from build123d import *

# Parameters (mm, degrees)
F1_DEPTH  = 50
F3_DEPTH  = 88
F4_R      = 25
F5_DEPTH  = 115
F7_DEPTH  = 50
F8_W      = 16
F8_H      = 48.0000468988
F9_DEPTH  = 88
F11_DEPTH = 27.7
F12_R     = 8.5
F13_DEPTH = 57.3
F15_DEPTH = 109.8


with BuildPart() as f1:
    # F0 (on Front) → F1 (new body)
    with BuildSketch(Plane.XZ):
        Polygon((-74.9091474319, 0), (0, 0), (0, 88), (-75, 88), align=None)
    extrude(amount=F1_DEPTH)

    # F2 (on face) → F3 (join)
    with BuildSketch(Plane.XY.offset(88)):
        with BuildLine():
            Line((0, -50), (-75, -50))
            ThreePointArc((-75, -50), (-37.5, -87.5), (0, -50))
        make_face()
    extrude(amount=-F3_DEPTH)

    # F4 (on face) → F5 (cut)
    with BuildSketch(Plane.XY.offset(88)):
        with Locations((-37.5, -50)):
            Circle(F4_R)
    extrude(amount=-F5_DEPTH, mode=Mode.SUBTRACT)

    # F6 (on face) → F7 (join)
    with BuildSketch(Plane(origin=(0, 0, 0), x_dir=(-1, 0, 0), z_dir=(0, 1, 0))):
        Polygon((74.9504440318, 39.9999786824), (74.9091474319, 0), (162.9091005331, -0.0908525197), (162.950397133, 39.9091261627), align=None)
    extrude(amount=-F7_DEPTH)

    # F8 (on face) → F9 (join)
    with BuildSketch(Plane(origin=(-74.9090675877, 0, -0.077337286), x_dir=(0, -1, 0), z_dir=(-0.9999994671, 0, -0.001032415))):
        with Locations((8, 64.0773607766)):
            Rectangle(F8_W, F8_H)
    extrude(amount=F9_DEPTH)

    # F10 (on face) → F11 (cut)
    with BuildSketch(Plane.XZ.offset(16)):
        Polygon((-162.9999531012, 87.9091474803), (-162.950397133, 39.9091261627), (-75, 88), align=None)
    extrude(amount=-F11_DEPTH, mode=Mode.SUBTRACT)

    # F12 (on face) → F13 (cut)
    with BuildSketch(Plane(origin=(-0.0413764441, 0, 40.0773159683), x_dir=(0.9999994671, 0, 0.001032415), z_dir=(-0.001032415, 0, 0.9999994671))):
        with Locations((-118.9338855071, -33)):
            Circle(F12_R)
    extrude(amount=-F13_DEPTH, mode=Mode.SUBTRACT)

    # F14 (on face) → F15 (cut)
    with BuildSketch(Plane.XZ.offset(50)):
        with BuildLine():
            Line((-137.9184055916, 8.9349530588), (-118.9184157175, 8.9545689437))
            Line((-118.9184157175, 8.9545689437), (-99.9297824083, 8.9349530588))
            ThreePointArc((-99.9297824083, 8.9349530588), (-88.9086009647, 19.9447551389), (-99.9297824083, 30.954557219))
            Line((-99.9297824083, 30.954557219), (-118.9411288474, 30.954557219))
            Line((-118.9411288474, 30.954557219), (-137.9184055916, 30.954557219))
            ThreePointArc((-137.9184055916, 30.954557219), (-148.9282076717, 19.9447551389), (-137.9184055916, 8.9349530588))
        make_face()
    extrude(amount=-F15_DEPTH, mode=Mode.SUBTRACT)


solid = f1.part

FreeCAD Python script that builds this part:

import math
import FreeCAD as App
import Part
import Sketcher

V = App.Vector
Q = App.Units.Quantity

doc = App.newDocument("Part")
body = doc.addObject("PartDesign::Body", "Body")

sketch1 = doc.addObject("Sketcher::SketchObject", "Sketch")
body.addObject(sketch1)
sketch1.AttachmentSupport = (doc.XZ_Plane, [""])
sketch1.MapMode = "FlatFace"
sketch1.addGeometry(Part.LineSegment(V(-75, 0, 0), V(0, 0, 0)), False)
sketch1.addGeometry(Part.LineSegment(V(0, 0, 0), V(0, 88, 0)), False)
sketch1.addGeometry(Part.LineSegment(V(0, 88, 0), V(-75, 88, 0)), False)
sketch1.addGeometry(Part.LineSegment(V(-75, 88, 0), V(-75, 0, 0)), False)
sketch1.addConstraint(Sketcher.Constraint("Coincident", 0, 2, 1, 1))
sketch1.addConstraint(Sketcher.Constraint("Coincident", 1, 2, 2, 1))
sketch1.addConstraint(Sketcher.Constraint("Coincident", 2, 2, 3, 1))
sketch1.addConstraint(Sketcher.Constraint("Coincident", 3, 2, 0, 1))
sketch1.addConstraint(Sketcher.Constraint("Horizontal", 0))
sketch1.addConstraint(Sketcher.Constraint("Vertical", 1))
sketch1.addConstraint(Sketcher.Constraint("Horizontal", 2))
sketch1.addConstraint(Sketcher.Constraint("Coincident", 0, 2, -1, 1))
sketch1.addConstraint(Sketcher.Constraint("DistanceX", 2, 2, 2, 1, Q("75 mm")))
sketch1.addConstraint(Sketcher.Constraint("DistanceY", 1, 1, 1, 2, Q("88 mm")))
sketch1.addConstraint(Sketcher.Constraint("DistanceX", 0, 1, 0, 2, Q("74.909147 mm")))
pad1 = doc.addObject("PartDesign::Pad", "Pad")
body.addObject(pad1)
pad1.Profile = sketch1
pad1.Length = 50

sketch2 = doc.addObject("Sketcher::SketchObject", "Sketch001")
body.addObject(sketch2)
sketch2.AttachmentSupport = (doc.XY_Plane, [""])
sketch2.MapMode = "FlatFace"
sketch2.AttachmentOffset = App.Placement(V(0, 0, 88), App.Rotation())
sketch2.addGeometry(Part.LineSegment(V(0, -50, 0), V(-75, -50, 0)), False)
sketch2.addGeometry(Part.ArcOfCircle(Part.Circle(V(-38, -50, 0), V(0, 0, 1), 38), math.radians(180), math.radians(360)), False)
sketch2.addConstraint(Sketcher.Constraint("Coincident", 0, 1, 1, 2))
sketch2.addConstraint(Sketcher.Constraint("Coincident", 1, 1, 0, 2))
sketch2.addConstraint(Sketcher.Constraint("Horizontal", 0))
sketch2.addConstraint(Sketcher.Constraint("PointOnObject", 0, 1, -2))
sketch2.addConstraint(Sketcher.Constraint("Horizontal", 1, 3, 0, 1))
sketch2.addConstraint(Sketcher.Constraint("Radius", 1, Q("37.5 mm")))
sketch2.addConstraint(Sketcher.Constraint("DistanceY", 1, 3, -1, 1, Q("50 mm")))
pad2 = doc.addObject("PartDesign::Pad", "Pad001")
body.addObject(pad2)
pad2.Profile = sketch2
pad2.Length = 88
pad2.Reversed = True

sketch3 = doc.addObject("Sketcher::SketchObject", "Sketch002")
body.addObject(sketch3)
sketch3.AttachmentSupport = (doc.XY_Plane, [""])
sketch3.MapMode = "FlatFace"
sketch3.AttachmentOffset = App.Placement(V(0, 0, 88), App.Rotation())
sketch3.addGeometry(Part.Circle(V(-38, -50, 0), V(0, 0, 1), 25), False)
sketch3.addConstraint(Sketcher.Constraint("Diameter", 0, Q("50 mm")))
sketch3.addConstraint(Sketcher.Constraint("DistanceY", 0, 3, -1, 1, Q("50 mm")))
sketch3.addConstraint(Sketcher.Constraint("DistanceX", 0, 3, -1, 1, Q("37.5 mm")))
pocket1 = doc.addObject("PartDesign::Pocket", "Pocket")
body.addObject(pocket1)
pocket1.Profile = sketch3
pocket1.Length = 115

sketch4 = doc.addObject("Sketcher::SketchObject", "Sketch003")
body.addObject(sketch4)
sketch4.AttachmentSupport = (doc.XZ_Plane, [""])
sketch4.MapMode = "FlatFace"
sketch4.addGeometry(Part.LineSegment(V(-75, 40, 0), V(-75, 0, 0)), False)
sketch4.addGeometry(Part.LineSegment(V(-75, 0, 0), V(-163, 0, 0)), False)
sketch4.addGeometry(Part.LineSegment(V(-163, 0, 0), V(-163, 40, 0)), False)
sketch4.addGeometry(Part.LineSegment(V(-163, 40, 0), V(-75, 40, 0)), False)
sketch4.addConstraint(Sketcher.Constraint("Coincident", 0, 2, 1, 1))
sketch4.addConstraint(Sketcher.Constraint("Coincident", 1, 2, 2, 1))
sketch4.addConstraint(Sketcher.Constraint("Coincident", 2, 2, 3, 1))
sketch4.addConstraint(Sketcher.Constraint("Coincident", 3, 2, 0, 1))
sketch4.addConstraint(Sketcher.Constraint("PointOnObject", 0, 2, -1))
sketch4.addConstraint(Sketcher.Constraint("Perpendicular", 0, 1))
sketch4.addConstraint(Sketcher.Constraint("Perpendicular", 1, 2))
sketch4.addConstraint(Sketcher.Constraint("Perpendicular", 2, 3))
sketch4.addConstraint(Sketcher.Constraint("Distance", 0, Q("40 mm")))
sketch4.addConstraint(Sketcher.Constraint("Distance", 1, Q("88 mm")))
sketch4.addConstraint(Sketcher.Constraint("DistanceX", 1, 2, -1, 1, Q("162.909101 mm")))
sketch4.addConstraint(Sketcher.Constraint("DistanceX", 2, 2, 0, 2, Q("88.04125 mm")))
pad3 = doc.addObject("PartDesign::Pad", "Pad002")
body.addObject(pad3)
pad3.Profile = sketch4
pad3.Length = 50

sketch5 = doc.addObject("Sketcher::SketchObject", "Sketch004")
body.addObject(sketch5)
sketch5.Placement = App.Placement(V(-74.909068, 0, -0.077337), App.Rotation(V(0, -1, 0), V(-0.001032415, 0, 0.999999467), V(-0.999999467, 0, -0.001032415), "ZXY"))
sketch5.addGeometry(Part.LineSegment(V(0, 88, 0), V(0, 40, 0)), False)
sketch5.addGeometry(Part.LineSegment(V(0, 40, 0), V(16, 40, 0)), False)
sketch5.addGeometry(Part.LineSegment(V(16, 40, 0), V(16, 88, 0)), False)
sketch5.addGeometry(Part.LineSegment(V(16, 88, 0), V(0, 88, 0)), False)
sketch5.addConstraint(Sketcher.Constraint("Coincident", 0, 2, 1, 1))
sketch5.addConstraint(Sketcher.Constraint("Coincident", 1, 2, 2, 1))
sketch5.addConstraint(Sketcher.Constraint("Coincident", 2, 2, 3, 1))
sketch5.addConstraint(Sketcher.Constraint("Coincident", 3, 2, 0, 1))
sketch5.addConstraint(Sketcher.Constraint("Vertical", 0))
sketch5.addConstraint(Sketcher.Constraint("Horizontal", 1))
sketch5.addConstraint(Sketcher.Constraint("Vertical", 2))
sketch5.addConstraint(Sketcher.Constraint("Horizontal", 3))
sketch5.addConstraint(Sketcher.Constraint("PointOnObject", 0, 2, -2))
sketch5.addConstraint(Sketcher.Constraint("DistanceX", 1, 1, 1, 2, Q("16 mm")))
sketch5.addConstraint(Sketcher.Constraint("DistanceY", 0, 2, 0, 1, Q("48.000047 mm")))
sketch5.addConstraint(Sketcher.Constraint("DistanceY", -1, 1, 0, 2, Q("40.077337 mm")))
pad4 = doc.addObject("PartDesign::Pad", "Pad003")
body.addObject(pad4)
pad4.Profile = sketch5
pad4.Length = 88

sketch6 = doc.addObject("Sketcher::SketchObject", "Sketch005")
body.addObject(sketch6)
sketch6.AttachmentSupport = (doc.XZ_Plane, [""])
sketch6.MapMode = "FlatFace"
sketch6.AttachmentOffset = App.Placement(V(0, 0, 16), App.Rotation())
sketch6.addGeometry(Part.LineSegment(V(-163, 88, 0), V(-163, 40, 0)), False)
sketch6.addGeometry(Part.LineSegment(V(-163, 40, 0), V(-75, 88, 0)), False)
sketch6.addGeometry(Part.LineSegment(V(-75, 88, 0), V(-163, 88, 0)), False)
sketch6.addConstraint(Sketcher.Constraint("Coincident", 0, 2, 1, 1))
sketch6.addConstraint(Sketcher.Constraint("Coincident", 1, 2, 2, 1))
sketch6.addConstraint(Sketcher.Constraint("Coincident", 2, 2, 0, 1))
sketch6.addConstraint(Sketcher.Constraint("Perpendicular", 0, 2))
sketch6.addConstraint(Sketcher.Constraint("Distance", 2, Q("88 mm")))
sketch6.addConstraint(Sketcher.Constraint("DistanceX", 1, 2, -1, 1, Q("75 mm")))
sketch6.addConstraint(Sketcher.Constraint("DistanceY", -1, 1, 1, 2, Q("88 mm")))
sketch6.addConstraint(Sketcher.Constraint("DistanceY", 0, 2, 2, 2, Q("48.000021 mm")))
sketch6.addConstraint(Sketcher.Constraint("DistanceX", 0, 2, -1, 1, Q("162.950397 mm")))
pocket2 = doc.addObject("PartDesign::Pocket", "Pocket001")
body.addObject(pocket2)
pocket2.Profile = sketch6
pocket2.Length = 27.7

sketch7 = doc.addObject("Sketcher::SketchObject", "Sketch006")
body.addObject(sketch7)
sketch7.Placement = App.Placement(V(-0.041376, 0, 40.077316), App.Rotation(V(0.999999467, 0, 0.001032415), V(0, 1, 0), V(-0.001032415, 0, 0.999999467), "ZXY"))
sketch7.addGeometry(Part.Circle(V(-119, -33, 0), V(0, 0, 1), 8), False)
sketch7.addConstraint(Sketcher.Constraint("Diameter", 0, Q("17 mm")))
sketch7.addConstraint(Sketcher.Constraint("DistanceY", 0, 3, -1, 1, Q("33 mm")))
sketch7.addConstraint(Sketcher.Constraint("DistanceX", 0, 3, -1, 1, Q("118.933885 mm")))
pocket3 = doc.addObject("PartDesign::Pocket", "Pocket002")
body.addObject(pocket3)
pocket3.Profile = sketch7
pocket3.Length = 57.3

sketch8 = doc.addObject("Sketcher::SketchObject", "Sketch007")
body.addObject(sketch8)
sketch8.AttachmentSupport = (doc.XZ_Plane, [""])
sketch8.MapMode = "FlatFace"
sketch8.AttachmentOffset = App.Placement(V(0, 0, 50), App.Rotation())
sketch8.addGeometry(Part.LineSegment(V(-138, 9, 0), V(-119, 9, 0)), False)
sketch8.addGeometry(Part.LineSegment(V(-119, 9, 0), V(-100, 9, 0)), False)
sketch8.addGeometry(Part.ArcOfCircle(Part.Circle(V(-100, 20, 0), V(0, 0, 1), 11), math.radians(-90), math.radians(90)), False)
sketch8.addGeometry(Part.LineSegment(V(-100, 31, 0), V(-138, 31, 0)), False)
sketch8.addGeometry(Part.ArcOfCircle(Part.Circle(V(-138, 20, 0), V(0, 0, 1), 11), math.radians(90), math.radians(270)), False)
sketch8.addConstraint(Sketcher.Constraint("Coincident", 0, 2, 1, 1))
sketch8.addConstraint(Sketcher.Constraint("Tangent", 1, 2, 2, 1))
sketch8.addConstraint(Sketcher.Constraint("Coincident", 2, 2, 3, 1))
sketch8.addConstraint(Sketcher.Constraint("Tangent", 3, 2, 4, 1))
sketch8.addConstraint(Sketcher.Constraint("Coincident", 4, 2, 0, 1))
sketch8.addConstraint(Sketcher.Constraint("Horizontal", 3))
sketch8.addConstraint(Sketcher.Constraint("Horizontal", 2, 3, 4, 3))
sketch8.addConstraint(Sketcher.Constraint("Vertical", 1, 2, 2, 2))
sketch8.addConstraint(Sketcher.Constraint("Vertical", 3, 2, 4, 2))
sketch8.addConstraint(Sketcher.Constraint("Distance", 0, Q("19 mm")))
sketch8.addConstraint(Sketcher.Constraint("Radius", 2, Q("11.009808 mm")))
sketch8.addConstraint(Sketcher.Constraint("DistanceX", 3, 2, 3, 1, Q("37.988623 mm")))
sketch8.addConstraint(Sketcher.Constraint("DistanceX", 2, 3, -1, 1, Q("99.918409 mm")))
sketch8.addConstraint(Sketcher.Constraint("DistanceY", -1, 1, 0, 2, Q("8.954569 mm")))
sketch8.addConstraint(Sketcher.Constraint("DistanceY", 0, 2, 2, 2, Q("21.999988 mm")))
pocket4 = doc.addObject("PartDesign::Pocket", "Pocket003")
body.addObject(pocket4)
pocket4.Profile = sketch8
pocket4.Length = 109.8

doc.recompute()
